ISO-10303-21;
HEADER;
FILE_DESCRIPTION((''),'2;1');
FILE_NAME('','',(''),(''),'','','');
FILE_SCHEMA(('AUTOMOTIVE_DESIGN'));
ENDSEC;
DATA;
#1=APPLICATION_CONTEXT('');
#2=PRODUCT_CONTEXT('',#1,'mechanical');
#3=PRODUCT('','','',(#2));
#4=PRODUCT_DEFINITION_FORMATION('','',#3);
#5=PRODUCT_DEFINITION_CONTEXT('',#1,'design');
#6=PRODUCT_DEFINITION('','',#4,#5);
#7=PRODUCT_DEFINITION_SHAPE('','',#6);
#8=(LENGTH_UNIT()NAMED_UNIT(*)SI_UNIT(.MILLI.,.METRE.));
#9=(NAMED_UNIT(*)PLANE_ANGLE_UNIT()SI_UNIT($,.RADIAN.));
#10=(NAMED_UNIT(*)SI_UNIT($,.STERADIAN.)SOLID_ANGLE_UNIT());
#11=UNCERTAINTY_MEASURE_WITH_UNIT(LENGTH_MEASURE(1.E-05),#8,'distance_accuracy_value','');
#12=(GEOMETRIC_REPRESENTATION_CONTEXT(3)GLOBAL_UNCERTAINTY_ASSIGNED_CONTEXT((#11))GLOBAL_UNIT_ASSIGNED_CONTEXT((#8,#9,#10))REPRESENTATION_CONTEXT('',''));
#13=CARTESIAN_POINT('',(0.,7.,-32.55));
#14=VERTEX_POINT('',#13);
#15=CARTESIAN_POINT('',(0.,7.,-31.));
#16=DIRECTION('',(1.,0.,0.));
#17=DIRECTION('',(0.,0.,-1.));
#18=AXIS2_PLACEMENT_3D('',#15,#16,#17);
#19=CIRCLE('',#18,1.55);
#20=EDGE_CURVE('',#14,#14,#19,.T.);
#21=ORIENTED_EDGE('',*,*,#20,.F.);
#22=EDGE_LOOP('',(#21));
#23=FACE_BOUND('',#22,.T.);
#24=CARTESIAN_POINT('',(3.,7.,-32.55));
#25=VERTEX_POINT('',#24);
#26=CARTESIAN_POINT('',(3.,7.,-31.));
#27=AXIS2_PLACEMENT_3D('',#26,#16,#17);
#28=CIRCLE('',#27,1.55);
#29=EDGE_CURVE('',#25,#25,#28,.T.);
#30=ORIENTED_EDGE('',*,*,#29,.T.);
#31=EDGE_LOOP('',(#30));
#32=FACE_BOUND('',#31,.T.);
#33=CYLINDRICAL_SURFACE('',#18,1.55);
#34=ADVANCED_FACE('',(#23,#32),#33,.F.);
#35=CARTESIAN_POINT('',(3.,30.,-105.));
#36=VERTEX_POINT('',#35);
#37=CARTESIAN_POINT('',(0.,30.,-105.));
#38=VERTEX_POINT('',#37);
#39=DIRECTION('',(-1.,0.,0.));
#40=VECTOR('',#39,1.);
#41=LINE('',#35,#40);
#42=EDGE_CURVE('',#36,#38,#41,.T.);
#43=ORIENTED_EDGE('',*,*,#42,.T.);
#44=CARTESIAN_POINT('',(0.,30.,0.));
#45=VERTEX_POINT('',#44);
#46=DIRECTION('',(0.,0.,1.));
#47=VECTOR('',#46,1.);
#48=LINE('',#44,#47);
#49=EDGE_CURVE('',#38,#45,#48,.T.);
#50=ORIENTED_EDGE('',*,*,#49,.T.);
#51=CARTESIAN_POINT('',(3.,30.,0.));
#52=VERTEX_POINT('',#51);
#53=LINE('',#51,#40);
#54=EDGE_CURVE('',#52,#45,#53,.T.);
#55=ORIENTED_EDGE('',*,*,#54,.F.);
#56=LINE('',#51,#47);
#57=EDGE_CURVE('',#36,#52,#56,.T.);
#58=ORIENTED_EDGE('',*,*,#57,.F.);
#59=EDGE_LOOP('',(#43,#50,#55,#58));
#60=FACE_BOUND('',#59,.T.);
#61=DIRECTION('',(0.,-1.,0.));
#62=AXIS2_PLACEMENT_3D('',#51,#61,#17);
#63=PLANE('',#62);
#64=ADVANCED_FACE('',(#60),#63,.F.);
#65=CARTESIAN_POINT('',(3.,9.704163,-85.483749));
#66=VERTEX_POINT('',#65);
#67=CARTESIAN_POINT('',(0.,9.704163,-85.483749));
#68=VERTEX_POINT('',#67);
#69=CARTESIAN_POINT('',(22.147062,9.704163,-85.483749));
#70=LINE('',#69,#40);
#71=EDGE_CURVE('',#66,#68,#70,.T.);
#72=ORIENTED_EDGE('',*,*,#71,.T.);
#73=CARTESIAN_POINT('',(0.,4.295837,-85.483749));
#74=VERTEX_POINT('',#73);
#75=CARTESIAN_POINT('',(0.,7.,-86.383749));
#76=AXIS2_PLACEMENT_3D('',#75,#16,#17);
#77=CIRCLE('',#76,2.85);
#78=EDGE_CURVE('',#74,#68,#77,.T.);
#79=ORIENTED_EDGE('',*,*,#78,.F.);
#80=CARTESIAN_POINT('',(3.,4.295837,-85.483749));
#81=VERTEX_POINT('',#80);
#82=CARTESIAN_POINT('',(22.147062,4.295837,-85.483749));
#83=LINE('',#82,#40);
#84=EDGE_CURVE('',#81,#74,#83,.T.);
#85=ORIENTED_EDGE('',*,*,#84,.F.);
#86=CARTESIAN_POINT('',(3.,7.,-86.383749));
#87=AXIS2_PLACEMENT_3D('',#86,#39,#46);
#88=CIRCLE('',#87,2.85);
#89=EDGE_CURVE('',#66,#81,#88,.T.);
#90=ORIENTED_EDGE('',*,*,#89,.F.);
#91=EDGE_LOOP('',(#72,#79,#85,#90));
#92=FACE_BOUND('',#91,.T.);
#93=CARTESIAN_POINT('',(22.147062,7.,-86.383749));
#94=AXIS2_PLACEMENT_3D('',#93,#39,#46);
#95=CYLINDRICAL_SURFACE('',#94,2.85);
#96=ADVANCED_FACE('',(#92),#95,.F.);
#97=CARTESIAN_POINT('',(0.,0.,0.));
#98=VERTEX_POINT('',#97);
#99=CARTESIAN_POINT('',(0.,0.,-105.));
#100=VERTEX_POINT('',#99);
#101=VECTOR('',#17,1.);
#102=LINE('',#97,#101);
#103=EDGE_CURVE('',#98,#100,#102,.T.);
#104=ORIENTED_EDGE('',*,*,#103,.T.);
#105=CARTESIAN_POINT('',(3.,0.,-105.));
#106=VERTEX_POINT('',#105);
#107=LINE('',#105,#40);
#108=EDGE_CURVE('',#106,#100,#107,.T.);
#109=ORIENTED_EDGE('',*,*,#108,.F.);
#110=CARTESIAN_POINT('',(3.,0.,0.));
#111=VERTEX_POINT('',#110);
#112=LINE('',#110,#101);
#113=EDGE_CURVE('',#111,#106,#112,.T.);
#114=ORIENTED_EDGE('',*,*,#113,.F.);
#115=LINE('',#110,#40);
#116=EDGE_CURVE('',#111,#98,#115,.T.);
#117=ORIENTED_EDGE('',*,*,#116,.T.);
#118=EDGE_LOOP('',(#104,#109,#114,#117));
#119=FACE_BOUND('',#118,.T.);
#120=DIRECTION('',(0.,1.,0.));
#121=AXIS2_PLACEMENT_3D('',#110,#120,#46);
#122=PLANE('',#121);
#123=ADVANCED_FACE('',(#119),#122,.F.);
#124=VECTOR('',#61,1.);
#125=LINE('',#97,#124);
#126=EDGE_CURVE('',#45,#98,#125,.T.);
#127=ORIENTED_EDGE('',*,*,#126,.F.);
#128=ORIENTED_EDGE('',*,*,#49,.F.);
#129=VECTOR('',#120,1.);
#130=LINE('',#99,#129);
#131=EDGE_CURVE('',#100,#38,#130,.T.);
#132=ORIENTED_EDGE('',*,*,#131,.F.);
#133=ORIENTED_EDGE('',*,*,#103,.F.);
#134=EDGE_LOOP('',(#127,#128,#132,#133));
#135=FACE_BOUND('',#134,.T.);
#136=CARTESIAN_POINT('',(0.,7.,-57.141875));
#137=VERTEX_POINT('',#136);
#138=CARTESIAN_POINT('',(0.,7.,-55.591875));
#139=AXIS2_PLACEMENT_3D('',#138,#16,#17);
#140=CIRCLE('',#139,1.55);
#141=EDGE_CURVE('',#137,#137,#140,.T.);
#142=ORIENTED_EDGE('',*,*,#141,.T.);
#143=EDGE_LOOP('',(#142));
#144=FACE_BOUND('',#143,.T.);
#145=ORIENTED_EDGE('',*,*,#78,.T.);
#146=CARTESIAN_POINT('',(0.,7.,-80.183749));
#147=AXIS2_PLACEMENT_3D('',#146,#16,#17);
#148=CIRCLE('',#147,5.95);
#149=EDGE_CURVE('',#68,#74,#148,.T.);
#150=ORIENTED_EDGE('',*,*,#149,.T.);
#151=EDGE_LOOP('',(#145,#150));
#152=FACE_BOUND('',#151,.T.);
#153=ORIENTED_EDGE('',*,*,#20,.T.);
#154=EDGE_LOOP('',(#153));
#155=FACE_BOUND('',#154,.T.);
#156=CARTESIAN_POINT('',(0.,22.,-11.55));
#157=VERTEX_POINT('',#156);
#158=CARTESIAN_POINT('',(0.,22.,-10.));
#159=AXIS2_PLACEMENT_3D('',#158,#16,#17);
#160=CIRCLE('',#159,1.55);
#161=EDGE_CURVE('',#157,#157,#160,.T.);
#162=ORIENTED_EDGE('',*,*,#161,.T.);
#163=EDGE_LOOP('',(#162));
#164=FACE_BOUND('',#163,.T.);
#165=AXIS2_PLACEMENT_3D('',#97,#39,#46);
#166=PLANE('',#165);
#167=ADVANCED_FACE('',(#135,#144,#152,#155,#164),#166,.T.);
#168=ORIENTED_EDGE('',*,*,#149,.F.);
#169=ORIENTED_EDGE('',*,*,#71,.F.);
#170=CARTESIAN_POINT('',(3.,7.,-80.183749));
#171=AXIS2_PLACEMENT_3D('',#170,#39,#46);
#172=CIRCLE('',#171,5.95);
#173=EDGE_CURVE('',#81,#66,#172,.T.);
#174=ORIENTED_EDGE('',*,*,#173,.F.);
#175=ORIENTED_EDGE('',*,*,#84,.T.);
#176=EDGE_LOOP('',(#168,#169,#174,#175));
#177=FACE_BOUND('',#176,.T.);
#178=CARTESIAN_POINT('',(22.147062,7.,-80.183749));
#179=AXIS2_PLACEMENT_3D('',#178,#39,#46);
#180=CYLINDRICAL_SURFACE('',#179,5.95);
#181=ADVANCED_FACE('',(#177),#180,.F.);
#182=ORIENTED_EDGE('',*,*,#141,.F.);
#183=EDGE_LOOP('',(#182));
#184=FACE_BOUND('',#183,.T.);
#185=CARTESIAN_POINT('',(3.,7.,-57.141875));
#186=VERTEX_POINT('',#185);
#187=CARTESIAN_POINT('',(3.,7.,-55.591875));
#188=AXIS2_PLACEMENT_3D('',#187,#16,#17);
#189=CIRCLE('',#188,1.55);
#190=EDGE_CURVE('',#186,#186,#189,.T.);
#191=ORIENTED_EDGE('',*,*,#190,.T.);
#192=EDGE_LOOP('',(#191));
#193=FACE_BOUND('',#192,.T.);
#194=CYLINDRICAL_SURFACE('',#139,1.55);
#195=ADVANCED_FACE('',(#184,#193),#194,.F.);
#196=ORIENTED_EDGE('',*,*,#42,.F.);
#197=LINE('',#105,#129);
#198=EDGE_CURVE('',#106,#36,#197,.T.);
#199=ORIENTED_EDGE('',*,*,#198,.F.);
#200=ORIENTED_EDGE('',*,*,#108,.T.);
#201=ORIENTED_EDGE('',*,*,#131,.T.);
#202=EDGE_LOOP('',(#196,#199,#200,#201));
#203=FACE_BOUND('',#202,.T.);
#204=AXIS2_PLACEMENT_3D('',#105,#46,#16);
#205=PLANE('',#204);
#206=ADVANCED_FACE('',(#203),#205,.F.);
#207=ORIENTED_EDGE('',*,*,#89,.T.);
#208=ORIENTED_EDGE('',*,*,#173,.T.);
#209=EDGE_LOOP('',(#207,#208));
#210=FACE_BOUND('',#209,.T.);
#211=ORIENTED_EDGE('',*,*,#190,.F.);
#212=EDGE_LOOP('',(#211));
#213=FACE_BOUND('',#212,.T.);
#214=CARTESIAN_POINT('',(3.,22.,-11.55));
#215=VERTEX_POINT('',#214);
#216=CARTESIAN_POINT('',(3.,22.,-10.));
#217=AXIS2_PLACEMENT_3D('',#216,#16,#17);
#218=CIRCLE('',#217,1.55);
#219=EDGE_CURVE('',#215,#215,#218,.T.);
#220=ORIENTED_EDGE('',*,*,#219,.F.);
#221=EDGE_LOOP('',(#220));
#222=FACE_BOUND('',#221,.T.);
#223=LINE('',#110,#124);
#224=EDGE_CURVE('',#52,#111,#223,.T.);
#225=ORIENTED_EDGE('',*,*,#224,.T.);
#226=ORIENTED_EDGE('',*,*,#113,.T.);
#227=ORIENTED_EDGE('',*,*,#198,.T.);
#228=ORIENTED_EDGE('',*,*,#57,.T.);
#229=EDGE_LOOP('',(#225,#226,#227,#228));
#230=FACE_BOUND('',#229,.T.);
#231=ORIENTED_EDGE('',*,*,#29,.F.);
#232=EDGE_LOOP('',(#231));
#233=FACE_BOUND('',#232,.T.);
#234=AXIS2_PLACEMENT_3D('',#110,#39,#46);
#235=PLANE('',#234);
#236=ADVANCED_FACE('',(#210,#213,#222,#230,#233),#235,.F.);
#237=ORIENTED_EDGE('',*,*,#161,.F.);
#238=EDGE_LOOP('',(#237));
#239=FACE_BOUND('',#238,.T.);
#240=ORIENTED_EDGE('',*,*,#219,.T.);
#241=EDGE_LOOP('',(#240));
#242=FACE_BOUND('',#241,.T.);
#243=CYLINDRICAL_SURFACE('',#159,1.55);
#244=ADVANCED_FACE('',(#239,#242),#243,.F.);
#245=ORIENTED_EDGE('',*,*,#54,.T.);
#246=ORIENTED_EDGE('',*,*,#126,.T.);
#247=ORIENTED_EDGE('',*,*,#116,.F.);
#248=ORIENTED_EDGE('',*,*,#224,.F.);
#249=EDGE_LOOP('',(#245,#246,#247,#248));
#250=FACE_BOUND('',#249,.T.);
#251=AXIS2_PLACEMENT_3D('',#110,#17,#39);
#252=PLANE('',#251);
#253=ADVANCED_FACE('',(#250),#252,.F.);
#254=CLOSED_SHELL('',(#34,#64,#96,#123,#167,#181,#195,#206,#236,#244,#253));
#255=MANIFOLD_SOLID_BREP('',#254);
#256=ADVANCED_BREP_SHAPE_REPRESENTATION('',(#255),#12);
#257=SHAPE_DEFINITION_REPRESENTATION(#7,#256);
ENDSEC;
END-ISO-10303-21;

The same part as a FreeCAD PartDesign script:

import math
import FreeCAD as App
import Part
import Sketcher
from FreeCAD import Vector
Q = App.Units.Quantity


def add_polygon(sketch, points):
    """Adds a closed chain of lines whose ends are joined by coincident constraints."""
    first, n = sketch.GeometryCount, len(points)
    for a, b in zip(points, points[1:] + points[:1]):
        sketch.addGeometry(Part.LineSegment(App.Vector(*a, 0), App.Vector(*b, 0)), False)
    for i in range(n):
        sketch.addConstraint(Sketcher.Constraint("Coincident", first + i, 2, first + (i + 1) % n, 1))

doc = App.newDocument("Part")
body = doc.addObject("PartDesign::Body", "Body")

sketch1 = body.newObject("Sketcher::SketchObject", "Sketch")
sketch1.AttachmentSupport = (doc.getObject("YZ_Plane"), [""])
sketch1.MapMode = "FlatFace"
add_polygon(sketch1, [(30, 0), (0, 0), (0, -105), (30, -105)])
sketch1.addConstraint([
    Sketcher.Constraint("Horizontal", 0),
    Sketcher.Constraint("Vertical", 1),
    Sketcher.Constraint("Horizontal", 2),
    Sketcher.Constraint("Vertical", 3),
    Sketcher.Constraint("Coincident", 0, 2, -1, 1),
    Sketcher.Constraint("DistanceX", 0, 2, 0, 1, Q("30 mm")),
    Sketcher.Constraint("DistanceY", 1, 2, 1, 1, Q("105 mm")),
])
pad1 = body.newObject("PartDesign::Pad", "Pad")
pad1.Profile = sketch1
pad1.Length = 3

sketch2 = body.newObject("Sketcher::SketchObject", "Sketch001")
sketch2.AttachmentSupport = (doc.getObject("YZ_Plane"), [""])
sketch2.MapMode = "FlatFace"
sketch2.AttachmentOffset = App.Placement(Vector(0, 0, 3), App.Rotation())
sketch2.addGeometry([
    Part.Circle(Vector(22, -10, 0), Vector(0, 0, 1), 1.55),
    Part.Circle(Vector(7, -31, 0), Vector(0, 0, 1), 1.55),
    Part.Circle(Vector(7, -55.591875, 0), Vector(0, 0, 1), 1.55),
    Part.Circle(Vector(7, -80.183749, 0), Vector(0, 0, 1), 1.55),
], False)
sketch2.addConstraint([
    Sketcher.Constraint("Equal", 0, 1),
    Sketcher.Constraint("Equal", 1, 2),
    Sketcher.Constraint("Equal", 2, 3),
    Sketcher.Constraint("Vertical", 1, 3, 2, 3),
    Sketcher.Constraint("Vertical", 2, 3, 3, 3),
    Sketcher.Constraint("Diameter", 0, Q("3.1 mm")),
    Sketcher.Constraint("DistanceX", -1, 1, 0, 3, Q("22 mm")),
    Sketcher.Constraint("DistanceY", 0, 3, -1, 1, Q("10 mm")),
    Sketcher.Constraint("DistanceX", -1, 1, 1, 3, Q("7 mm")),
    Sketcher.Constraint("DistanceY", 1, 3, -1, 1, Q("31 mm")),
    Sketcher.Constraint("DistanceY", 3, 3, -1, 1, Q("80.183749 mm")),
    Sketcher.Constraint("DistanceY", 2, 3, -1, 1, Q("55.591875 mm")),
])
pocket1 = body.newObject("PartDesign::Pocket", "Pocket")
pocket1.Profile = sketch2
pocket1.Type = "ThroughAll"

sketch3 = body.newObject("Sketcher::SketchObject", "Sketch002")
sketch3.AttachmentSupport = (doc.getObject("YZ_Plane"), [""])
sketch3.MapMode = "FlatFace"
sketch3.addGeometry([
    Part.ArcOfCircle(Part.Circle(Vector(7, -80.183749, 0), Vector(0, 0, 1), 5.95), math.radians(-62.968438), math.radians(242.968438)),
    Part.ArcOfCircle(Part.Circle(Vector(7, -86.383749, 0), Vector(0, 0, 1), 2.85), math.radians(161.59152), math.radians(378.40848)),
], False)
sketch3.addConstraint([
    Sketcher.Constraint("Coincident", 0, 1, 1, 2),
    Sketcher.Constraint("Coincident", 1, 1, 0, 2),
    Sketcher.Constraint("Horizontal", 0, 1, 1, 1),
    Sketcher.Constraint("Radius", 0, Q("5.95 mm")),
    Sketcher.Constraint("Radius", 1, Q("2.85 mm")),
    Sketcher.Constraint("DistanceX", -1, 1, 0, 3, Q("7 mm")),
    Sketcher.Constraint("DistanceY", 1, 3, 0, 3, Q("6.2 mm")),
    Sketcher.Constraint("DistanceY", 0, 3, -1, 1, Q("80.183749 mm")),
])
pocket2 = body.newObject("PartDesign::Pocket", "Pocket001")
pocket2.Profile = sketch3
pocket2.Length = 3
pocket2.Reversed = True

doc.recompute()
